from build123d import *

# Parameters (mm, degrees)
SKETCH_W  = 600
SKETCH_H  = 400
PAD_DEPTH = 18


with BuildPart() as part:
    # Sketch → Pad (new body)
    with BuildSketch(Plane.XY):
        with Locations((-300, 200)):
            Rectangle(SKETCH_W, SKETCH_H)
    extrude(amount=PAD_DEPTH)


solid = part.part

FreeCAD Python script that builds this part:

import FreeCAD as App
import Part
import Sketcher

V = App.Vector
Q = App.Units.Quantity

doc = App.newDocument("Part")
body = doc.addObject("PartDesign::Body", "Body")

sketch1 = body.newObject("Sketcher::SketchObject", "Sketch")
sketch1.AttachmentSupport = (doc.getObject("XY_Plane"), [""])
sketch1.MapMode = "FlatFace"
sketch1.addGeometry(Part.LineSegment(V(-600, 400, 0), V(-600, 0, 0)), False)
sketch1.addGeometry(Part.LineSegment(V(-600, 0, 0), V(0, 0, 0)), False)
sketch1.addGeometry(Part.LineSegment(V(0, 0, 0), V(0, 400, 0)), False)
sketch1.addGeometry(Part.LineSegment(V(0, 400, 0), V(-600, 400, 0)), False)
sketch1.addConstraint(Sketcher.Constraint("Coincident", 0, 2, 1, 1))
sketch1.addConstraint(Sketcher.Constraint("Coincident", 1, 2, 2, 1))
sketch1.addConstraint(Sketcher.Constraint("Coincident", 2, 2, 3, 1))
sketch1.addConstraint(Sketcher.Constraint("Coincident", 3, 2, 0, 1))
sketch1.addConstraint(Sketcher.Constraint("Vertical", 0))
sketch1.addConstraint(Sketcher.Constraint("Horizontal", 1))
sketch1.addConstraint(Sketcher.Constraint("Vertical", 2))
sketch1.addConstraint(Sketcher.Constraint("Horizontal", 3))
sketch1.addConstraint(Sketcher.Constraint("Coincident", 1, 2, -1, 1))
sketch1.addConstraint(Sketcher.Constraint("DistanceX", 1, 1, 1, 2, Q("600 mm")))
sketch1.addConstraint(Sketcher.Constraint("DistanceY", 0, 2, 0, 1, Q("400 mm")))
pad1 = body.newObject("PartDesign::Pad", "Pad")
pad1.Profile = sketch1
pad1.Length = 18

doc.recompute()
